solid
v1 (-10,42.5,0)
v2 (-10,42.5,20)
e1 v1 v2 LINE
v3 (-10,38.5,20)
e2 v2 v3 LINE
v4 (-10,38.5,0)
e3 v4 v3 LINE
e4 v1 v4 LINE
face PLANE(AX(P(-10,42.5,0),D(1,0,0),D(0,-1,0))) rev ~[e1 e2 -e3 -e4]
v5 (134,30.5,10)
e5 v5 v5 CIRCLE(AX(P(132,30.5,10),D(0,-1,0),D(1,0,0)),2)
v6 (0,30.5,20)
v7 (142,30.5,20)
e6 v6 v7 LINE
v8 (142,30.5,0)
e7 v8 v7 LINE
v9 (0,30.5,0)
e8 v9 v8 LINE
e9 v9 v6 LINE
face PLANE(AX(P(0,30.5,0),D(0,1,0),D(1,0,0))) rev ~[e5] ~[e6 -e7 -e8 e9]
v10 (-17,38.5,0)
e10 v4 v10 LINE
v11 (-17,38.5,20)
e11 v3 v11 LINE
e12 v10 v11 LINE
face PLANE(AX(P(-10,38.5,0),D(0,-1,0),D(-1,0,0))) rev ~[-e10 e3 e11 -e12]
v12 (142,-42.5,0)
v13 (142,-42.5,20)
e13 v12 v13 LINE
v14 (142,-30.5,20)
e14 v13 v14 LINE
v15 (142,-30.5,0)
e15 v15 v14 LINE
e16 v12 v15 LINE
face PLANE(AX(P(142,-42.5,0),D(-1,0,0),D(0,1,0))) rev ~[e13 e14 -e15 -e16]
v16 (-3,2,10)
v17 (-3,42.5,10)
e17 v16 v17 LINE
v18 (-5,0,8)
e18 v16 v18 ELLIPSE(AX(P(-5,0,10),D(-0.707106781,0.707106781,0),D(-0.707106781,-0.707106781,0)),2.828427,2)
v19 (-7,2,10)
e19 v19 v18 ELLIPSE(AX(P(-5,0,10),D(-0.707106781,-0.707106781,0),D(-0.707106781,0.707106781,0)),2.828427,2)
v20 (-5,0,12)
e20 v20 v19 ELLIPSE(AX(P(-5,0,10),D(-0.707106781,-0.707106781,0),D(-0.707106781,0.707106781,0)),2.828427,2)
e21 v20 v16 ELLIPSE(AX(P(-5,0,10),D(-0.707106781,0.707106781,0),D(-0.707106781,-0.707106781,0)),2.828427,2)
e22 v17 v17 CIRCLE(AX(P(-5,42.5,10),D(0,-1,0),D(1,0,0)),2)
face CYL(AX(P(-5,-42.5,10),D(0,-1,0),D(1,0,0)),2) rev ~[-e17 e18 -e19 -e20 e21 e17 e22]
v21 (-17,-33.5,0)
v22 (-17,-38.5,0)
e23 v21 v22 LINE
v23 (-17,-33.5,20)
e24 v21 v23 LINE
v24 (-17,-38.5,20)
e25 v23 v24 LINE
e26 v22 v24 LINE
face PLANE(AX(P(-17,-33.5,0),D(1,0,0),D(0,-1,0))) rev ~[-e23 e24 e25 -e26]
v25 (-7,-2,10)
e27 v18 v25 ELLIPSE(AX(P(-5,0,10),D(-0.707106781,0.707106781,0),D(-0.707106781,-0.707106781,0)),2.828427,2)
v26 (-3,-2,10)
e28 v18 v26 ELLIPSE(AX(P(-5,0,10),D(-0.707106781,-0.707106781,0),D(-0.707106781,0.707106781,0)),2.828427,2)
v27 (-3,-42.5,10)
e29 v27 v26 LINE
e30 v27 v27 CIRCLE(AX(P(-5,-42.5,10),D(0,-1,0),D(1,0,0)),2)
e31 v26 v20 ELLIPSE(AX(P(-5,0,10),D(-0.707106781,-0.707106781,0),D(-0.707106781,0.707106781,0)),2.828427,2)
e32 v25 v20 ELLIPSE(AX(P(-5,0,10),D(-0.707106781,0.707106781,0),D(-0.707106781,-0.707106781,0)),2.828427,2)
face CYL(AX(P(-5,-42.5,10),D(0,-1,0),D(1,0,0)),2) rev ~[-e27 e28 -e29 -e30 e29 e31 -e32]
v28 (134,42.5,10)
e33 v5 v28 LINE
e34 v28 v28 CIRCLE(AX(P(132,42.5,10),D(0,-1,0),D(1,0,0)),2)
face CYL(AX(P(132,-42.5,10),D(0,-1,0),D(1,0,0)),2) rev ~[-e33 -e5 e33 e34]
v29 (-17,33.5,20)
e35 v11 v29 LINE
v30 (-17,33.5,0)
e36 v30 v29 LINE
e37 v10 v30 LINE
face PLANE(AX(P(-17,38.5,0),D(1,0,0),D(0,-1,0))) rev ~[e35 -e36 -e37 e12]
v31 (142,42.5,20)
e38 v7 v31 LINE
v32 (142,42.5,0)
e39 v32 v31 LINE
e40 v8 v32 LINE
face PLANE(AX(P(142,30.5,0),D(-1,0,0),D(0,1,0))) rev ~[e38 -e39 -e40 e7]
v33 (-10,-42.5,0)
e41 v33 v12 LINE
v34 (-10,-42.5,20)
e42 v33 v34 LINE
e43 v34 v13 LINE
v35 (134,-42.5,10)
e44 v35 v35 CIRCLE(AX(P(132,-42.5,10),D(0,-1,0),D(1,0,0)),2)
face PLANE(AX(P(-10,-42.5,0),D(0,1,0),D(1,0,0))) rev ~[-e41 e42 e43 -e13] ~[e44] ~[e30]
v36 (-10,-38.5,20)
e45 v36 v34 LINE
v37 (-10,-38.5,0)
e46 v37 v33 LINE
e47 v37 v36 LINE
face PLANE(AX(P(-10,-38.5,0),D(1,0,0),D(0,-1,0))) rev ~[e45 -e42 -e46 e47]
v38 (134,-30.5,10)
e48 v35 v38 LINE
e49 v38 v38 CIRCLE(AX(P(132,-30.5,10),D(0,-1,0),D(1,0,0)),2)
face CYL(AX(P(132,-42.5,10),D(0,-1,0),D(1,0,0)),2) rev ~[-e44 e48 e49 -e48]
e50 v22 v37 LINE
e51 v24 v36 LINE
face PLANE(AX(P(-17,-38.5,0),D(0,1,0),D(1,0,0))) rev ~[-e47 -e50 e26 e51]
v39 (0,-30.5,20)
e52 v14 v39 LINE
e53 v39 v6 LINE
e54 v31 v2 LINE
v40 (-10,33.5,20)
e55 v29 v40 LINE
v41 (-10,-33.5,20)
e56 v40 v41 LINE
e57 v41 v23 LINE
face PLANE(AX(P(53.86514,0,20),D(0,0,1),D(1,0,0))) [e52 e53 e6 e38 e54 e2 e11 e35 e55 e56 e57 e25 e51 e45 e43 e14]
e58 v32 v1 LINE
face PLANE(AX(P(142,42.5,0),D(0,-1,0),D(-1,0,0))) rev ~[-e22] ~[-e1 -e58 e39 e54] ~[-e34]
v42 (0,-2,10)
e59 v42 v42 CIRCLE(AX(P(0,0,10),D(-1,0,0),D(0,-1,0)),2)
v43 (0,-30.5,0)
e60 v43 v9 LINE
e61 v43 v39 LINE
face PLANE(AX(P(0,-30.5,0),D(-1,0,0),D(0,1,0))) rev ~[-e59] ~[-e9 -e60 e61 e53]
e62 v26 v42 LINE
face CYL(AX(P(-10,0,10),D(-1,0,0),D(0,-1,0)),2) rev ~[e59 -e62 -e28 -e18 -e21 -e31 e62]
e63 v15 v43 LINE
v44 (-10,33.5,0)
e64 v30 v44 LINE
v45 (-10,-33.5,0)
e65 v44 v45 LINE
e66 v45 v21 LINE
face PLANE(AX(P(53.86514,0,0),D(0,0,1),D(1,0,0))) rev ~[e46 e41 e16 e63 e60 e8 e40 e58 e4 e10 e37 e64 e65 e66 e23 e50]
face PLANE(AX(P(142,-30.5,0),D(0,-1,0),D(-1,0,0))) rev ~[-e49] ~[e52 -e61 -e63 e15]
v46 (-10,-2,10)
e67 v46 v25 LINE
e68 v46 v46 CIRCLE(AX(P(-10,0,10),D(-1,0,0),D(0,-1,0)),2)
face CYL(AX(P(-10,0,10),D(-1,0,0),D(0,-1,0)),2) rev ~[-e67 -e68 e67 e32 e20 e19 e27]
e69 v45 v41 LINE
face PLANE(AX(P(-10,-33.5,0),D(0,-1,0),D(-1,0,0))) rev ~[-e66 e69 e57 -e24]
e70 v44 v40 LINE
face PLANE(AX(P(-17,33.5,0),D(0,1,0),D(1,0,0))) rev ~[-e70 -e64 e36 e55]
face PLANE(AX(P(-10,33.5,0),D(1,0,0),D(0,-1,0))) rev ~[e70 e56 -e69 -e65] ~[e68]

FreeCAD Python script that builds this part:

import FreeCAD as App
import Part
import Sketcher
from FreeCAD import Vector

doc = App.newDocument("Part")
params = doc.addObject("Spreadsheet::Sheet", "Params")
for row, (alias, value) in enumerate([
    ("sketch1_width", "152 mm"),
    ("sketch1_width2", "142 mm"),
    ("sketch1_width3", "7 mm"),
    ("sketch1_height", "12 mm"),
    ("sketch1_height2", "61 mm"),
    ("pad1_length", "20 mm"),
    ("sketch2_diameter", "4 mm"),
    ("sketch3_diameter", "4 mm"),
], start=1):
    params.set(f"A{row}", alias)
    params.set(f"B{row}", "=" + value)
    params.setAlias(f"B{row}", alias)

body = doc.addObject("PartDesign::Body", "Body")

# Sketch on XY plane
sketch1 = body.newObject("Sketcher::SketchObject", "Sketch")
sketch1.AttachmentSupport = (doc.getObject("XY_Plane"), [""])
sketch1.MapMode = "FlatFace"
sketch1.addGeometry(Part.LineSegment(Vector(-10, -42.5, 0), Vector(142, -42.5, 0)), False)
sketch1.addGeometry(Part.LineSegment(Vector(142, -42.5, 0), Vector(142, -30.5, 0)), False)
sketch1.addGeometry(Part.LineSegment(Vector(142, -30.5, 0), Vector(0, -30.5, 0)), False)
sketch1.addGeometry(Part.LineSegment(Vector(0, -30.5, 0), Vector(0, 30.5, 0)), False)
sketch1.addGeometry(Part.LineSegment(Vector(0, 30.5, 0), Vector(142, 30.5, 0)), False)
sketch1.addGeometry(Part.LineSegment(Vector(142, 30.5, 0), Vector(142, 42.5, 0)), False)
sketch1.addGeometry(Part.LineSegment(Vector(142, 42.5, 0), Vector(-10, 42.5, 0)), False)
sketch1.addGeometry(Part.LineSegment(Vector(-10, 42.5, 0), Vector(-10, 38.5, 0)), False)
sketch1.addGeometry(Part.LineSegment(Vector(-10, 38.5, 0), Vector(-17, 38.5, 0)), False)
sketch1.addGeometry(Part.LineSegment(Vector(-17, 38.5, 0), Vector(-17, 33.5, 0)), False)
sketch1.addGeometry(Part.LineSegment(Vector(-17, 33.5, 0), Vector(-10, 33.5, 0)), False)
sketch1.addGeometry(Part.LineSegment(Vector(-10, 33.5, 0), Vector(-10, -33.5, 0)), False)
sketch1.addGeometry(Part.LineSegment(Vector(-10, -33.5, 0), Vector(-17, -33.5, 0)), False)
sketch1.addGeometry(Part.LineSegment(Vector(-17, -33.5, 0), Vector(-17, -38.5, 0)), False)
sketch1.addGeometry(Part.LineSegment(Vector(-17, -38.5, 0), Vector(-10, -38.5, 0)), False)
sketch1.addGeometry(Part.LineSegment(Vector(-10, -38.5, 0), Vector(-10, -42.5, 0)), False)
sketch1.addConstraint(Sketcher.Constraint("Coincident", 0, 2, 1, 1))
sketch1.addConstraint(Sketcher.Constraint("Coincident", 1, 2, 2, 1))
sketch1.addConstraint(Sketcher.Constraint("Coincident", 2, 2, 3, 1))
sketch1.addConstraint(Sketcher.Constraint("Coincident", 3, 2, 4, 1))
sketch1.addConstraint(Sketcher.Constraint("Coincident", 4, 2, 5, 1))
sketch1.addConstraint(Sketcher.Constraint("Coincident", 5, 2, 6, 1))
sketch1.addConstraint(Sketcher.Constraint("Coincident", 6, 2, 7, 1))
sketch1.addConstraint(Sketcher.Constraint("Coincident", 7, 2, 8, 1))
sketch1.addConstraint(Sketcher.Constraint("Coincident", 8, 2, 9, 1))
sketch1.addConstraint(Sketcher.Constraint("Coincident", 9, 2, 10, 1))
sketch1.addConstraint(Sketcher.Constraint("Coincident", 10, 2, 11, 1))
sketch1.addConstraint(Sketcher.Constraint("Coincident", 11, 2, 12, 1))
sketch1.addConstraint(Sketcher.Constraint("Coincident", 12, 2, 13, 1))
sketch1.addConstraint(Sketcher.Constraint("Coincident", 13, 2, 14, 1))
sketch1.addConstraint(Sketcher.Constraint("Coincident", 14, 2, 15, 1))
sketch1.addConstraint(Sketcher.Constraint("Coincident", 15, 2, 0, 1))
sketch1.addConstraint(Sketcher.Constraint("Horizontal", 0))
sketch1.addConstraint(Sketcher.Constraint("Vertical", 1))
sketch1.addConstraint(Sketcher.Constraint("Horizontal", 2))
sketch1.addConstraint(Sketcher.Constraint("Vertical", 3))
sketch1.addConstraint(Sketcher.Constraint("Horizontal", 4))
sketch1.addConstraint(Sketcher.Constraint("Vertical", 5))
sketch1.addConstraint(Sketcher.Constraint("Horizontal", 6))
sketch1.addConstraint(Sketcher.Constraint("Vertical", 7))
sketch1.addConstraint(Sketcher.Constraint("Horizontal", 8))
sketch1.addConstraint(Sketcher.Constraint("Vertical", 9))
sketch1.addConstraint(Sketcher.Constraint("Horizontal", 10))
sketch1.addConstraint(Sketcher.Constraint("Vertical", 11))
sketch1.addConstraint(Sketcher.Constraint("Horizontal", 12))
sketch1.addConstraint(Sketcher.Constraint("Vertical", 13))
sketch1.addConstraint(Sketcher.Constraint("Horizontal", 14))
sketch1.addConstraint(Sketcher.Constraint("Vertical", 15))
sketch1.addConstraint(Sketcher.Constraint("Symmetric", 2, 2, 3, 2, -1, 1))
sketch1.addConstraint(Sketcher.Constraint("Symmetric", 0, 2, 5, 2, -1))
sketch1.addConstraint(Sketcher.Constraint("Symmetric", 9, 2, 12, 2, -1))
sketch1.addConstraint(Sketcher.Constraint("Symmetric", 7, 2, 14, 2, -1))
sketch1.addConstraint(Sketcher.Constraint("Vertical", 7, 2, 10, 2))
sketch1.addConstraint(Sketcher.Constraint("DistanceX", 0, 1, 0, 2, 152.0))
sketch1.addConstraint(Sketcher.Constraint("DistanceX", 2, 2, 2, 1, 142.0))
sketch1.addConstraint(Sketcher.Constraint("DistanceX", 8, 2, 8, 1, 7.0))
sketch1.addConstraint(Sketcher.Constraint("DistanceY", 1, 1, 1, 2, 12.0))
sketch1.addConstraint(Sketcher.Constraint("DistanceY", 3, 1, 3, 2, 61.0))
sketch1.addConstraint(Sketcher.Constraint("DistanceY", 7, 2, 7, 1, 4.0))
sketch1.addConstraint(Sketcher.Constraint("DistanceY", 9, 2, 9, 1, 5.0))
sketch1.setExpression("Constraints[37]", "Params.sketch1_width")
sketch1.setExpression("Constraints[38]", "Params.sketch1_width2")
sketch1.setExpression("Constraints[39]", "Params.sketch1_width3")
sketch1.setExpression("Constraints[40]", "Params.sketch1_height")
sketch1.setExpression("Constraints[41]", "Params.sketch1_height2")
pad1 = body.newObject("PartDesign::Pad", "Pad")
pad1.Profile = sketch1
pad1.setExpression("Length", "Params.pad1_length")

# Sketch on YZ plane
sketch2 = body.newObject("Sketcher::SketchObject", "Sketch001")
sketch2.AttachmentSupport = (doc.getObject("YZ_Plane"), [""])
sketch2.MapMode = "FlatFace"
sketch2.AttachmentOffset = App.Placement(Vector(0, 0, -10), App.Rotation())
sketch2.addGeometry(Part.Circle(Vector(0, 10, 0), Vector(0, 0, 1), 2), False)
sketch2.addConstraint(Sketcher.Constraint("PointOnObject", 0, 3, -2))
sketch2.addConstraint(Sketcher.Constraint("Diameter", 0, 4.0))
sketch2.addConstraint(Sketcher.Constraint("DistanceY", -1, 1, 0, 3, 10.0))
sketch2.setExpression("Constraints[1]", "Params.sketch2_diameter")
pocket1 = body.newObject("PartDesign::Pocket", "Pocket")
pocket1.Profile = sketch2
pocket1.Type = "ThroughAll"
pocket1.Reversed = True

# Sketch on XZ plane
sketch3 = body.newObject("Sketcher::SketchObject", "Sketch002")
sketch3.AttachmentSupport = (doc.getObject("XZ_Plane"), [""])
sketch3.MapMode = "FlatFace"
sketch3.AttachmentOffset = App.Placement(Vector(0, 0, 42.5), App.Rotation())
sketch3.addGeometry(Part.Circle(Vector(-5, 10, 0), Vector(0, 0, 1), 2), False)
sketch3.addGeometry(Part.Circle(Vector(132, 10, 0), Vector(0, 0, 1), 2), False)
sketch3.addConstraint(Sketcher.Constraint("Equal", 0, 1))
sketch3.addConstraint(Sketcher.Constraint("Horizontal", 0, 3, 1, 3))
sketch3.addConstraint(Sketcher.Constraint("Diameter", 0, 4.0))
sketch3.addConstraint(Sketcher.Constraint("DistanceX", 0, 3, -1, 1, 5.0))
sketch3.addConstraint(Sketcher.Constraint("DistanceY", -1, 1, 0, 3, 10.0))
sketch3.addConstraint(Sketcher.Constraint("DistanceX", -1, 1, 1, 3, 132.0))
sketch3.setExpression("Constraints[2]", "Params.sketch3_diameter")
pocket2 = body.newObject("PartDesign::Pocket", "Pocket001")
pocket2.Profile = sketch3
pocket2.Type = "ThroughAll"

doc.recompute()
